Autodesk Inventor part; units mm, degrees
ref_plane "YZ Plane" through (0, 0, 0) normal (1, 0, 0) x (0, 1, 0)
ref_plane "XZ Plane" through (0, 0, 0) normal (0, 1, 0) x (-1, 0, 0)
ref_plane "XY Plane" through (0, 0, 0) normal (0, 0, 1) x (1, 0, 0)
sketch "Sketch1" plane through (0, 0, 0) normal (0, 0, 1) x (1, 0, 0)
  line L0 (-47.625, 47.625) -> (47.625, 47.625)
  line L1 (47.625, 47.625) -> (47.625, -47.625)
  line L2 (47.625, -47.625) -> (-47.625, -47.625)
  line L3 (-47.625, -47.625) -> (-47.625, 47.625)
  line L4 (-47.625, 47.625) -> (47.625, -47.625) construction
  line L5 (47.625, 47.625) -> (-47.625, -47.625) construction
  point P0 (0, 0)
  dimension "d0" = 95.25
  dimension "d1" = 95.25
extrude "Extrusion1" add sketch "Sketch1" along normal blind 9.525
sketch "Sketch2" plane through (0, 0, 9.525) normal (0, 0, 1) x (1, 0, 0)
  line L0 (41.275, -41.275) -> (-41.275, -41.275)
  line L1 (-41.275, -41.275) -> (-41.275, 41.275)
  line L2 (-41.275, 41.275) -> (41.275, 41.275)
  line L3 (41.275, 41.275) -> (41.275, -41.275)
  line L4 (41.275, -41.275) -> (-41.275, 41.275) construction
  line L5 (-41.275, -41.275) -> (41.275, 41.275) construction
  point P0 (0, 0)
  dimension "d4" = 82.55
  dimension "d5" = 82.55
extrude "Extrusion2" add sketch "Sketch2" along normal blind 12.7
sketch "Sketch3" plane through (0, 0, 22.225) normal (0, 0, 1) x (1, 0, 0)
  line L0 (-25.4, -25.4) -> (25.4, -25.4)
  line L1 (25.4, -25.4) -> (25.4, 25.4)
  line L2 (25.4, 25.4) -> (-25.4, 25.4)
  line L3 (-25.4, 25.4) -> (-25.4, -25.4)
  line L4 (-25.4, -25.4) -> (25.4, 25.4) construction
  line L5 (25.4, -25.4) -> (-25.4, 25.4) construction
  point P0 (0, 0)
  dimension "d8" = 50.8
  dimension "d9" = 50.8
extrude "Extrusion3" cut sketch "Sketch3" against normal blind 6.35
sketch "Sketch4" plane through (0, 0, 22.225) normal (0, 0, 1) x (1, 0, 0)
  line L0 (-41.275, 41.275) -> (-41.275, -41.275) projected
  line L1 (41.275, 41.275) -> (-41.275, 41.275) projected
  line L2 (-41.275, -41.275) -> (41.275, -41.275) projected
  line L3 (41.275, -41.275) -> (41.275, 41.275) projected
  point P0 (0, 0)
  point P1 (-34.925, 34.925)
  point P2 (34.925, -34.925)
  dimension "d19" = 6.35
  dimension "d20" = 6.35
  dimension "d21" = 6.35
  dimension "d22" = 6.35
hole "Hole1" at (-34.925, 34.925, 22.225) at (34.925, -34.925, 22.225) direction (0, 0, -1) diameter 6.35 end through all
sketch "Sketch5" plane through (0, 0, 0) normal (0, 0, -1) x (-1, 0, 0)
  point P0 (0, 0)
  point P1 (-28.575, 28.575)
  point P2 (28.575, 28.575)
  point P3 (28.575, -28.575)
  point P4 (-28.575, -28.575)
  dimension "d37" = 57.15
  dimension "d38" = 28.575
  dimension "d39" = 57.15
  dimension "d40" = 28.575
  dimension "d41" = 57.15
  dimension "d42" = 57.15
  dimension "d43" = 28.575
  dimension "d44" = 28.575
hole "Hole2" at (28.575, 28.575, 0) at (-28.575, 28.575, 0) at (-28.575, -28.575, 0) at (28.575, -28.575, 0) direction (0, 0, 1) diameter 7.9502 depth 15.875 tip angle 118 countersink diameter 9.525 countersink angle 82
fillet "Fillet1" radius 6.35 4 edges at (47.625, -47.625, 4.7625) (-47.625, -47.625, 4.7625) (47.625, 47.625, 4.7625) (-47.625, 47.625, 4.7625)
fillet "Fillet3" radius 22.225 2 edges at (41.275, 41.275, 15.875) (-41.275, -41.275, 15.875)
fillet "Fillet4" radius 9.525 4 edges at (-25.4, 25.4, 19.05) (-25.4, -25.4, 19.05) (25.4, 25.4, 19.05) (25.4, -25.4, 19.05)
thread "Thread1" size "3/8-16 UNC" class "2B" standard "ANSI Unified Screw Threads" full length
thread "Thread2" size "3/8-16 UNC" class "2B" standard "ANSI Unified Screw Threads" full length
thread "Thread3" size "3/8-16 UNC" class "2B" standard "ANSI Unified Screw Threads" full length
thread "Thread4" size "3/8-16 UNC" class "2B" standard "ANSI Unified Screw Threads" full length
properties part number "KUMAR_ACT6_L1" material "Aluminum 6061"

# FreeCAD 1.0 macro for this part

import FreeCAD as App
import Part
import Sketcher
from FreeCAD import Vector
Q = App.Units.Quantity


def edges_at(feature, points):
    """Names of the edges that pass closest to the given points."""
    edges = feature.Shape.Edges
    near = lambda p: min(range(len(edges)), key=lambda i: edges[i].distToShape(Part.Vertex(*p))[0])
    return sorted({f"Edge{near(p) + 1}" for p in points})

doc = App.newDocument("Part")
body = doc.addObject("PartDesign::Body", "Body")

# Sketch on XY plane
sketch1 = doc.addObject("Sketcher::SketchObject", "Sketch")
body.addObject(sketch1)
sketch1.AttachmentSupport = (doc.XY_Plane, [""])
sketch1.MapMode = "FlatFace"
sketch1.addGeometry([
    Part.LineSegment(Vector(48, 48, 0), Vector(-48, 48, 0)),
    Part.LineSegment(Vector(-48, 48, 0), Vector(-48, -48, 0)),
    Part.LineSegment(Vector(-48, -48, 0), Vector(48, -48, 0)),
    Part.LineSegment(Vector(48, -48, 0), Vector(48, 48, 0)),
], False)
sketch1.addConstraint([
    Sketcher.Constraint("Coincident", 0, 2, 1, 1),
    Sketcher.Constraint("Coincident", 1, 2, 2, 1),
    Sketcher.Constraint("Coincident", 2, 2, 3, 1),
    Sketcher.Constraint("Coincident", 3, 2, 0, 1),
    Sketcher.Constraint("Horizontal", 0),
    Sketcher.Constraint("Vertical", 1),
    Sketcher.Constraint("Horizontal", 2),
    Sketcher.Constraint("Vertical", 3),
    Sketcher.Constraint("Symmetric", 0, 2, 2, 2, -1, 1),
    Sketcher.Constraint("Equal", 2, 1),
    Sketcher.Constraint("DistanceX", 0, 2, 0, 1, Q("3.75 in")),
])
pad1 = doc.addObject("PartDesign::Pad", "Pad")
body.addObject(pad1)
pad1.Profile = sketch1
pad1.Length = Q("0.375 in")

# Sketch on XY plane
sketch2 = doc.addObject("Sketcher::SketchObject", "Sketch001")
body.addObject(sketch2)
sketch2.AttachmentSupport = (doc.XY_Plane, [""])
sketch2.MapMode = "FlatFace"
sketch2.AttachmentOffset = App.Placement(Vector(0, 0, 0.375 * 25.4), App.Rotation())
sketch2.addGeometry([
    Part.LineSegment(Vector(-41, -41, 0), Vector(41, -41, 0)),
    Part.LineSegment(Vector(41, -41, 0), Vector(41, 41, 0)),
    Part.LineSegment(Vector(41, 41, 0), Vector(-41, 41, 0)),
    Part.LineSegment(Vector(-41, 41, 0), Vector(-41, -41, 0)),
], False)
sketch2.addConstraint([
    Sketcher.Constraint("Coincident", 0, 2, 1, 1),
    Sketcher.Constraint("Coincident", 1, 2, 2, 1),
    Sketcher.Constraint("Coincident", 2, 2, 3, 1),
    Sketcher.Constraint("Coincident", 3, 2, 0, 1),
    Sketcher.Constraint("Horizontal", 0),
    Sketcher.Constraint("Vertical", 1),
    Sketcher.Constraint("Horizontal", 2),
    Sketcher.Constraint("Vertical", 3),
    Sketcher.Constraint("Symmetric", 0, 2, 2, 2, -1, 1),
    Sketcher.Constraint("Equal", 2, 1),
    Sketcher.Constraint("DistanceX", 0, 1, 0, 2, Q("3.25 in")),
])
pad2 = doc.addObject("PartDesign::Pad", "Pad001")
body.addObject(pad2)
pad2.Profile = sketch2
pad2.Length = Q("0.5 in")

# Sketch on XY plane
sketch3 = doc.addObject("Sketcher::SketchObject", "Sketch002")
body.addObject(sketch3)
sketch3.AttachmentSupport = (doc.XY_Plane, [""])
sketch3.MapMode = "FlatFace"
sketch3.AttachmentOffset = App.Placement(Vector(0, 0, 0.875 * 25.4), App.Rotation())
sketch3.addGeometry([
    Part.LineSegment(Vector(-25, 25, 0), Vector(-25, -25, 0)),
    Part.LineSegment(Vector(-25, -25, 0), Vector(25, -25, 0)),
    Part.LineSegment(Vector(25, -25, 0), Vector(25, 25, 0)),
    Part.LineSegment(Vector(25, 25, 0), Vector(-25, 25, 0)),
], False)
sketch3.addConstraint([
    Sketcher.Constraint("Coincident", 0, 2, 1, 1),
    Sketcher.Constraint("Coincident", 1, 2, 2, 1),
    Sketcher.Constraint("Coincident", 2, 2, 3, 1),
    Sketcher.Constraint("Coincident", 3, 2, 0, 1),
    Sketcher.Constraint("Vertical", 0),
    Sketcher.Constraint("Horizontal", 1),
    Sketcher.Constraint("Vertical", 2),
    Sketcher.Constraint("Horizontal", 3),
    Sketcher.Constraint("Symmetric", 0, 2, 2, 2, -1, 1),
    Sketcher.Constraint("Equal", 3, 0),
    Sketcher.Constraint("DistanceX", 1, 1, 1, 2, Q("2 in")),
])
pocket1 = doc.addObject("PartDesign::Pocket", "Pocket")
body.addObject(pocket1)
pocket1.Profile = sketch3
pocket1.Length = Q("0.25 in")

# Sketch on XY plane
sketch4 = doc.addObject("Sketcher::SketchObject", "Sketch003")
body.addObject(sketch4)
sketch4.AttachmentSupport = (doc.XY_Plane, [""])
sketch4.MapMode = "FlatFace"
sketch4.AttachmentOffset = App.Placement(Vector(0, 0, 0.875 * 25.4), App.Rotation())
sketch4.addGeometry([
    Part.Circle(Vector(-34.9, 34.9, 0), Vector(0, 0, 1), 3.2),
    Part.Circle(Vector(34.9, -34.9, 0), Vector(0, 0, 1), 3.2),
], False)
sketch4.addConstraint([
    Sketcher.Constraint("Equal", 0, 1),
    Sketcher.Constraint("Symmetric", 0, 3, 1, 3, -1, 1),
    Sketcher.Constraint("Diameter", 0, Q("0.25 in")),
    Sketcher.Constraint("DistanceX", 0, 3, 1, 3, Q("2.75 in")),
    Sketcher.Constraint("DistanceY", 1, 3, 0, 3, Q("2.75 in")),
])
doc.recompute()
hole = doc.addObject("PartDesign::Hole", "Hole")
body.addObject(hole)
hole.Profile = sketch4
hole.ThreadType = "None"
hole.Diameter = Q("0.25 in")
hole.DepthType = "ThroughAll"

# Sketch on XY plane
sketch5 = doc.addObject("Sketcher::SketchObject", "Sketch004")
body.addObject(sketch5)
sketch5.AttachmentSupport = (doc.XY_Plane, [""])
sketch5.MapMode = "FlatFace"
sketch5.addGeometry([
    Part.Circle(Vector(28.6, 28.6, 0), Vector(0, 0, 1), 4),
    Part.Circle(Vector(-28.6, 28.6, 0), Vector(0, 0, 1), 4),
    Part.Circle(Vector(-28.6, -28.6, 0), Vector(0, 0, 1), 4),
    Part.Circle(Vector(28.6, -28.6, 0), Vector(0, 0, 1), 4),
], False)
sketch5.addConstraint([
    Sketcher.Constraint("Equal", 0, 1),
    Sketcher.Constraint("Equal", 1, 2),
    Sketcher.Constraint("Equal", 2, 3),
    Sketcher.Constraint("Symmetric", 0, 3, 2, 3, -1, 1),
    Sketcher.Constraint("Symmetric", 1, 3, 3, 3, -1, 1),
    Sketcher.Constraint("Symmetric", 0, 3, 1, 3, -2),
    Sketcher.Constraint("Diameter", 0, Q("0.313 in")),
    Sketcher.Constraint("DistanceX", 1, 3, 0, 3, Q("2.25 in")),
    Sketcher.Constraint("DistanceY", 2, 3, 1, 3, Q("2.25 in")),
])
doc.recompute()
hole2 = doc.addObject("PartDesign::Hole", "Hole001")
body.addObject(hole2)
hole2.Profile = sketch5
hole2.ThreadType = "None"
hole2.Diameter = Q("0.313 in")
hole2.DepthType = "Dimension"
hole2.Depth = Q("0.625 in")
hole2.DrillPoint = "Angled"
hole2.DrillPointAngle = 118
hole2.HoleCutType = "Countersink"
hole2.HoleCutDiameter = Q("0.375 in")
hole2.HoleCutCountersinkAngle = 82
hole2.Reversed = True
doc.recompute()

fillet = doc.addObject("PartDesign::Fillet", "Fillet")
body.addObject(fillet)
fillet.Base = (hole2, edges_at(hole2, [
    (47.625, -47.625, 4.763),
    (-47.625, -47.625, 4.763),
    (47.625, 47.625, 4.763),
    (-47.625, 47.625, 4.763),
]))
fillet.Radius = Q("0.25 in")
doc.recompute()

fillet2 = doc.addObject("PartDesign::Fillet", "Fillet001")
body.addObject(fillet2)
fillet2.Base = (fillet, edges_at(fillet, [(41.275, 41.275, 15.875), (-41.275, -41.275, 15.875)]))
fillet2.Radius = Q("0.875 in")
doc.recompute()

fillet3 = doc.addObject("PartDesign::Fillet", "Fillet002")
body.addObject(fillet3)
fillet3.Base = (fillet2, edges_at(fillet2, [
    (-25.4, 25.4, 19.05),
    (-25.4, -25.4, 19.05),
    (25.4, 25.4, 19.05),
    (25.4, -25.4, 19.05),
]))
fillet3.Radius = Q("0.375 in")

doc.recompute()
